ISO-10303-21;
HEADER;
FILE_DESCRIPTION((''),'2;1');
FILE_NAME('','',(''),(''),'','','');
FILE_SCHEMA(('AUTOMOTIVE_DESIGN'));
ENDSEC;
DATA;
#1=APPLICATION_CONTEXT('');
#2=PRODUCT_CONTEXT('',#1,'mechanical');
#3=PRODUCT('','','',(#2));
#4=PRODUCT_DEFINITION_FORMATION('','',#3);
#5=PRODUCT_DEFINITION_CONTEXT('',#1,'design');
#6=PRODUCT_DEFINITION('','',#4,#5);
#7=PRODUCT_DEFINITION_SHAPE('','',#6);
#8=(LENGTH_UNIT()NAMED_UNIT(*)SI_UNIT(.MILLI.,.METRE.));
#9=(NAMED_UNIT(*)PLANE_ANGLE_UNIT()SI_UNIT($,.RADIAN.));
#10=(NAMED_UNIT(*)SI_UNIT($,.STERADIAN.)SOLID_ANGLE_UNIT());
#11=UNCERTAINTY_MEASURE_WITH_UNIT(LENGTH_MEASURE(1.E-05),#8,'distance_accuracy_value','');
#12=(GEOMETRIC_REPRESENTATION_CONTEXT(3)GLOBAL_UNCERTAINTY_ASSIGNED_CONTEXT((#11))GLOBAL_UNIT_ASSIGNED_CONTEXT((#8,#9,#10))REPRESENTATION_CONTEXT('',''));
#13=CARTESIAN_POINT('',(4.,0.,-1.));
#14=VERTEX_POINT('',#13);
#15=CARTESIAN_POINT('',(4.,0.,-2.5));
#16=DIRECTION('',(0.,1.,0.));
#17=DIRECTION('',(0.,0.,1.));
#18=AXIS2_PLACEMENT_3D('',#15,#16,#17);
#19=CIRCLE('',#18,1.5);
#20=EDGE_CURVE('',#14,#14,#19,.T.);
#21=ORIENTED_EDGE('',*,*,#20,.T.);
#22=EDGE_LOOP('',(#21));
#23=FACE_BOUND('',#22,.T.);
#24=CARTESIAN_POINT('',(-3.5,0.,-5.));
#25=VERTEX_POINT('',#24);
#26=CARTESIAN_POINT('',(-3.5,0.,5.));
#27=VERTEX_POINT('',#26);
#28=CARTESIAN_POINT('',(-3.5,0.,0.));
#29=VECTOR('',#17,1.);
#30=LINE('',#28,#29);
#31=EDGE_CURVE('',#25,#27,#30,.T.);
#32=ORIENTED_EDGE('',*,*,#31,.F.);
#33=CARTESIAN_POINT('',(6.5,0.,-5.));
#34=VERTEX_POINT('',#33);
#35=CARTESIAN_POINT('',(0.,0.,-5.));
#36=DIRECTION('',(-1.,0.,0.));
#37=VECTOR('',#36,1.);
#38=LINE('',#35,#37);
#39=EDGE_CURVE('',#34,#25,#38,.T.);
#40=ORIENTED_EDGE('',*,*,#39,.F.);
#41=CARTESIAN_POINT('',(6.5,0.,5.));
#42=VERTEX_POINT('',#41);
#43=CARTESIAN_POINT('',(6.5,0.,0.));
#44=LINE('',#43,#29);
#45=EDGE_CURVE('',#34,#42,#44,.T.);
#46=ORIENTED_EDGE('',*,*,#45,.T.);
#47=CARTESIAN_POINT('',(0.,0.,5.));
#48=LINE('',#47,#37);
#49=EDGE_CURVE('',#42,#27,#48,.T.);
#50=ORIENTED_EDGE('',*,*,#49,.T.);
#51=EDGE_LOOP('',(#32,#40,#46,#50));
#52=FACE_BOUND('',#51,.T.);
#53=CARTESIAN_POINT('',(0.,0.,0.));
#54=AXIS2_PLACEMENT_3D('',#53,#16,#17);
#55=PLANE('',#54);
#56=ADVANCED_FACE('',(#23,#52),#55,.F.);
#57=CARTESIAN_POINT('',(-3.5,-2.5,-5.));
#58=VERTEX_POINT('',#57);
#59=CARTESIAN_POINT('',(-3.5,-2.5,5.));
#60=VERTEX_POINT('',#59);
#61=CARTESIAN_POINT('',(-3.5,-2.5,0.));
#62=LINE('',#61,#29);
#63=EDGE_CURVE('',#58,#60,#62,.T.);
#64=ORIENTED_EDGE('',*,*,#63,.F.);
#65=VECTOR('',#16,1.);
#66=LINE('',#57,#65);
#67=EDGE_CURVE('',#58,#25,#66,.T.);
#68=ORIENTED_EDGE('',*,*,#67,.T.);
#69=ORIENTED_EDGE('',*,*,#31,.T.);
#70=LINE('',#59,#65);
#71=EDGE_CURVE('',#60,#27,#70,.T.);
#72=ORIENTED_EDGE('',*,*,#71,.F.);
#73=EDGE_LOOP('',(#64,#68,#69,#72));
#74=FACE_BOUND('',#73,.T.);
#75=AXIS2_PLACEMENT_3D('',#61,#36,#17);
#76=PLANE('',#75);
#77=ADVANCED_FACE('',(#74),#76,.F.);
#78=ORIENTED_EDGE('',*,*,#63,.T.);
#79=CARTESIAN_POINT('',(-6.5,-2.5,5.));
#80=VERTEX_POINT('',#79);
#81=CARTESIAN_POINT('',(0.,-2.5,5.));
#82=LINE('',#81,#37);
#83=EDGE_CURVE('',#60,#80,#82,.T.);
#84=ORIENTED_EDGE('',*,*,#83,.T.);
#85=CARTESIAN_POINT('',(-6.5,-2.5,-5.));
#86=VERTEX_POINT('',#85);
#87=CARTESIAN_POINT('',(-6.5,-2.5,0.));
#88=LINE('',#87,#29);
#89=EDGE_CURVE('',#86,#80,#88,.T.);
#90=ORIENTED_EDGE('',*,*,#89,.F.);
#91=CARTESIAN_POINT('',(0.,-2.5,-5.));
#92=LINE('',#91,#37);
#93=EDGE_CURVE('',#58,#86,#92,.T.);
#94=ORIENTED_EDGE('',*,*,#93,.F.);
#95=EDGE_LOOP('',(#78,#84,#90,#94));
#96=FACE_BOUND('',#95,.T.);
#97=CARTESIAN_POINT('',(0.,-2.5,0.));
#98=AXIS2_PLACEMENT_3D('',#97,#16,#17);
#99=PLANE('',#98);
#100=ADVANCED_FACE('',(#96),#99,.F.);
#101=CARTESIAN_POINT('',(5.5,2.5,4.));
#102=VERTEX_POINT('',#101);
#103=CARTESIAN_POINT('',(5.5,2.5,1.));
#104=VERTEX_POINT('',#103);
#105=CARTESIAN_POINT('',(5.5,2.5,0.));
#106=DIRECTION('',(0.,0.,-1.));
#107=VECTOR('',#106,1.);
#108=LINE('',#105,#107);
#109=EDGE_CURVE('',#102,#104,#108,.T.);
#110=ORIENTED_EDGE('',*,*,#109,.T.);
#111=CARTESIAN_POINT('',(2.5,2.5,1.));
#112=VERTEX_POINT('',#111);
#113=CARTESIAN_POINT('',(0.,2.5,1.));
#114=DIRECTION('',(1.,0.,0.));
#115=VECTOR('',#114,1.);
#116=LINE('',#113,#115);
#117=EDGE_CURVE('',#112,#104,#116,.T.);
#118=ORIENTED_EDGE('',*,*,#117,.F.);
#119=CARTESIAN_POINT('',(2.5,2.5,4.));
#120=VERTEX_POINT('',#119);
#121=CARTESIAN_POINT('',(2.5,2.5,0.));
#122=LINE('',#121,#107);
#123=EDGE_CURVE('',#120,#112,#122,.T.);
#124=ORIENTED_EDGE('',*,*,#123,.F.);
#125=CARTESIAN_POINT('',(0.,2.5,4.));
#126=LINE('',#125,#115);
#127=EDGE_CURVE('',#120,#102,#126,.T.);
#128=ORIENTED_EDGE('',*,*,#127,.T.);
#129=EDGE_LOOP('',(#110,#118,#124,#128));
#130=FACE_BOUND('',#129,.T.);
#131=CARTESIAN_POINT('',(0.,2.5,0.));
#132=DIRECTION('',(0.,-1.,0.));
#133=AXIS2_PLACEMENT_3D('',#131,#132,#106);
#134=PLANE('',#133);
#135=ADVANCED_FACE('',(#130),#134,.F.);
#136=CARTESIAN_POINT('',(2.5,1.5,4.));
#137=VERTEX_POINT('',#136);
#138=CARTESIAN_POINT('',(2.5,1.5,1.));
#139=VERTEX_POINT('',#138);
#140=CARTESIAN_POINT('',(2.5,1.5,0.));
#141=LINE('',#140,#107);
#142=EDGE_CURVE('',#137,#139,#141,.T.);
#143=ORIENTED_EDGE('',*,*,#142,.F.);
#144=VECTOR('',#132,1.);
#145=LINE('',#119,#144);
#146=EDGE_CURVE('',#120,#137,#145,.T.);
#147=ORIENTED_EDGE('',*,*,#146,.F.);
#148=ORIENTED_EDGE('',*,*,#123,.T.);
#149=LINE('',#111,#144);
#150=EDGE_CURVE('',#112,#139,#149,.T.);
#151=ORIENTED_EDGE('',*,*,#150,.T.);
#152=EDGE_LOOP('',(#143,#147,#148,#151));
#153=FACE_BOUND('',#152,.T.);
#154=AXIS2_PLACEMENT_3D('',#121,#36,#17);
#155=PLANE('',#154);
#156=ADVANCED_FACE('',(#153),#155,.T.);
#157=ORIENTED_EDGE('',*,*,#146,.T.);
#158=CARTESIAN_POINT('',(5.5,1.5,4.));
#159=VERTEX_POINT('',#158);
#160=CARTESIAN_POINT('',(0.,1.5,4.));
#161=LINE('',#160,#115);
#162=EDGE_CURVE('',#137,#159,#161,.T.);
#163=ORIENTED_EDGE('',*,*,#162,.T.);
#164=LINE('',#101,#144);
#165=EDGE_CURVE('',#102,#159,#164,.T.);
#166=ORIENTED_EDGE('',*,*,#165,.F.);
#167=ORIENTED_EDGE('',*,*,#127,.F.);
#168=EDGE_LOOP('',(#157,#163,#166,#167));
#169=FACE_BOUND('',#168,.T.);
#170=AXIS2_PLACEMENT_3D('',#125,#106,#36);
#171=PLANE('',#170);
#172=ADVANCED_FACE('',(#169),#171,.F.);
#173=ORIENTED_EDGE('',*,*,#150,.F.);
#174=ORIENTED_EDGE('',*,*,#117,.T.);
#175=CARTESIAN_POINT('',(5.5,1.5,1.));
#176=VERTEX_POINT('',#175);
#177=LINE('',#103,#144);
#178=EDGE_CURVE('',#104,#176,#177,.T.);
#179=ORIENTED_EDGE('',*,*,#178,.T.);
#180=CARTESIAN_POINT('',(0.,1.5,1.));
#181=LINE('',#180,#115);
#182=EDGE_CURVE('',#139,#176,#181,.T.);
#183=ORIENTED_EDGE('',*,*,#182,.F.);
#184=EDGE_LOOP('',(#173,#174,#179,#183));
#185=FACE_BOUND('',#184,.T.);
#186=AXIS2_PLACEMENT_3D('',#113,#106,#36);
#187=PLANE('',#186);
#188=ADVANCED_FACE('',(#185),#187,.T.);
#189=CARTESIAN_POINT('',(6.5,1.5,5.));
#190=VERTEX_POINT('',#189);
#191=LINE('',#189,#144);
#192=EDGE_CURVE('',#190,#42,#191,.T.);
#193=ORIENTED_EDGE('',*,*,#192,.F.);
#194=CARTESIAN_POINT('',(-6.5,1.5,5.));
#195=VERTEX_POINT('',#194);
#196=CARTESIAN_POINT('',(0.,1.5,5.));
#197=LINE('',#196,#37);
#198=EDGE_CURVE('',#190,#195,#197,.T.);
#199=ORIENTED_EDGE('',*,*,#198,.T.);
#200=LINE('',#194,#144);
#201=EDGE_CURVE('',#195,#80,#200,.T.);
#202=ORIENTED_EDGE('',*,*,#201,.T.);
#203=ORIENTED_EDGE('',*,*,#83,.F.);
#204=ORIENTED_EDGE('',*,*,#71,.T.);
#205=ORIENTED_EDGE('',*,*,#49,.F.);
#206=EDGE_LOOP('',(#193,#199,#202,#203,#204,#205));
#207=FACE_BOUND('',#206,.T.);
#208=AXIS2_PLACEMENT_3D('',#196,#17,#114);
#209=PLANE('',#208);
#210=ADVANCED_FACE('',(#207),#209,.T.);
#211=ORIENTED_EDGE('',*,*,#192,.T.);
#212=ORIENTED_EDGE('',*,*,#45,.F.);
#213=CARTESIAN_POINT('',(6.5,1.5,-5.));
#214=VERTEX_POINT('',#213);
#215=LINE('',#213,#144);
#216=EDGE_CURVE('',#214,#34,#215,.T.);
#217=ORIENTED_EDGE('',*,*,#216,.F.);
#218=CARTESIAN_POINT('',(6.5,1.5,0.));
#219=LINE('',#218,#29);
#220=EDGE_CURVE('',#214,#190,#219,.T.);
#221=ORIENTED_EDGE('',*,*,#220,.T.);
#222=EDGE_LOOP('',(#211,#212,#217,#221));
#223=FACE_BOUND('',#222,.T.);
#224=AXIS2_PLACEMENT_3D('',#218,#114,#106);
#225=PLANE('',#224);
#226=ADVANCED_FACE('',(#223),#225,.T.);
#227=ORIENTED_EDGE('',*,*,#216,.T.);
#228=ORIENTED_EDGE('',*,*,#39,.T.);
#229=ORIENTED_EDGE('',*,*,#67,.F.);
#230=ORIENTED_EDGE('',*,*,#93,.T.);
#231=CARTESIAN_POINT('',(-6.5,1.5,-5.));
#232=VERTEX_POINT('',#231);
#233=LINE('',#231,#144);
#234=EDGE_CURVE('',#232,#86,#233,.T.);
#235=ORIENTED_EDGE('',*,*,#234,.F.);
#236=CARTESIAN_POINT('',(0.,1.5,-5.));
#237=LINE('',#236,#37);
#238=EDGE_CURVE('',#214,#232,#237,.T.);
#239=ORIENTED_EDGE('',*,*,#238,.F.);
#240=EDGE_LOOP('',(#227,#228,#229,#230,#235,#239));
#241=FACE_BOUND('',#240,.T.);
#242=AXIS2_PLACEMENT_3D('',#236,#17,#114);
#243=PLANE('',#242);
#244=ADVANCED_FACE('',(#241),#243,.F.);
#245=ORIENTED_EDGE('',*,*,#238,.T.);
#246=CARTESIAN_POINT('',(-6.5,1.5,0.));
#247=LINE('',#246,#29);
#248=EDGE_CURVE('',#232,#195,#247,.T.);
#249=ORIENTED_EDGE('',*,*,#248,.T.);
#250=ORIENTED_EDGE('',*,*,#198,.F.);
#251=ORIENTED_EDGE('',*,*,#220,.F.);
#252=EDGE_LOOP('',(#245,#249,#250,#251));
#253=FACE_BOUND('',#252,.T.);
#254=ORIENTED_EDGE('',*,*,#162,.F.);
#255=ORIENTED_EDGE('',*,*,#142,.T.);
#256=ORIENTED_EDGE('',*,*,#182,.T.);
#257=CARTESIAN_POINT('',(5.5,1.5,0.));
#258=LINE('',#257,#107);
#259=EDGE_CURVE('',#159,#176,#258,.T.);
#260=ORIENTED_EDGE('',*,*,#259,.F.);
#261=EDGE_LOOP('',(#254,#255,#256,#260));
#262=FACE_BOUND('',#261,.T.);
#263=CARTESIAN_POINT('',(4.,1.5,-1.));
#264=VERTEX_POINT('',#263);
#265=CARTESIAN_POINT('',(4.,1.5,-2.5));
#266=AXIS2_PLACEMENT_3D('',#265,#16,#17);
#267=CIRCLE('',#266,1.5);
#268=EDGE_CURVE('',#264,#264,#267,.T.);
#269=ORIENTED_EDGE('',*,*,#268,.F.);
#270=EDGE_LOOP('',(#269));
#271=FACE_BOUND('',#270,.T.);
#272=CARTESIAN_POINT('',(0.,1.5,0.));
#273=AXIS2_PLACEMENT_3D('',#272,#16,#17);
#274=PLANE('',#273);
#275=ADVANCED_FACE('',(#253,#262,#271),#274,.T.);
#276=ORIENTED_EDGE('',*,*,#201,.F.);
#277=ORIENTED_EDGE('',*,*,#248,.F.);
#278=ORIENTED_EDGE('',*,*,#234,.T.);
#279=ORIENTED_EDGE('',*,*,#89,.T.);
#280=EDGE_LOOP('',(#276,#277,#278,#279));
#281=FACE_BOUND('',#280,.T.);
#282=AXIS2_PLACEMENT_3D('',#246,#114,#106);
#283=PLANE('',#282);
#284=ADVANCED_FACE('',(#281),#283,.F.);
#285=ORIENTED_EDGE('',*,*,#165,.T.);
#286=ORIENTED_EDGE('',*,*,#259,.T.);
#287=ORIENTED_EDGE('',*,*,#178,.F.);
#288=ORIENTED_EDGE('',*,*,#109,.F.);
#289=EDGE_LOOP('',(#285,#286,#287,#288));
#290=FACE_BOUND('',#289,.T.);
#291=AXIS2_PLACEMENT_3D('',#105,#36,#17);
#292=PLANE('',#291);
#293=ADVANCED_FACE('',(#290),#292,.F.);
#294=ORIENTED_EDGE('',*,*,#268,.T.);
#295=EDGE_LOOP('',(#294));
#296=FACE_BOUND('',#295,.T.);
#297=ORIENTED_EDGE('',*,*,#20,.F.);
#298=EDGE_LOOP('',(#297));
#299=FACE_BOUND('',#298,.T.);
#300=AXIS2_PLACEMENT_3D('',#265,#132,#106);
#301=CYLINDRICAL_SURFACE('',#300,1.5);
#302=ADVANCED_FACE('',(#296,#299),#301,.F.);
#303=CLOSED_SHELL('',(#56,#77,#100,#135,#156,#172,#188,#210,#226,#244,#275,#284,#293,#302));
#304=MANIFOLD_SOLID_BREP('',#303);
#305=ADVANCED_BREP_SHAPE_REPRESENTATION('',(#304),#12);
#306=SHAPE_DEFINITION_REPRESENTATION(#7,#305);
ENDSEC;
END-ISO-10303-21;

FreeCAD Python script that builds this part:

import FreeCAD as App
import Part
import Sketcher
from FreeCAD import Vector
Q = App.Units.Quantity


def add_polygon(sketch, points):
    """Adds a closed chain of lines whose ends are joined by coincident constraints."""
    first, n = sketch.GeometryCount, len(points)
    for a, b in zip(points, points[1:] + points[:1]):
        sketch.addGeometry(Part.LineSegment(App.Vector(*a, 0), App.Vector(*b, 0)), False)
    for i in range(n):
        sketch.addConstraint(Sketcher.Constraint("Coincident", first + i, 2, first + (i + 1) % n, 1))

doc = App.newDocument("Part")
body = doc.addObject("PartDesign::Body", "Body")

sketch1 = doc.addObject("Sketcher::SketchObject", "Sketch")
body.addObject(sketch1)
sketch1.AttachmentSupport = (doc.XZ_Plane, [""])
sketch1.MapMode = "FlatFace"
add_polygon(sketch1, [(-6.5, -5), (-6.5, 5), (6.5, 5), (6.5, -5)])
sketch1.addGeometry(Part.Circle(Vector(4, -2.5, 0), Vector(0, 0, 1), 1.5), False)
sketch1.addConstraint([
    Sketcher.Constraint("Vertical", 0),
    Sketcher.Constraint("Horizontal", 1),
    Sketcher.Constraint("Vertical", 2),
    Sketcher.Constraint("Horizontal", 3),
    Sketcher.Constraint("Symmetric", 0, 2, 2, 2, -1, 1),
    Sketcher.Constraint("Diameter", 4, Q("3 mm")),
    Sketcher.Constraint("DistanceX", 1, 1, 1, 2, Q("13 mm")),
    Sketcher.Constraint("DistanceY", 0, 1, 0, 2, Q("10 mm")),
    Sketcher.Constraint("DistanceX", -1, 1, 4, 3, Q("4 mm")),
    Sketcher.Constraint("DistanceY", 4, 3, -1, 1, Q("2.5 mm")),
])
pad1 = doc.addObject("PartDesign::Pad", "Pad")
body.addObject(pad1)
pad1.Profile = sketch1
pad1.Length = 1.5
pad1.Reversed = True

sketch2 = doc.addObject("Sketcher::SketchObject", "Sketch001")
body.addObject(sketch2)
sketch2.AttachmentSupport = (doc.XZ_Plane, [""])
sketch2.MapMode = "FlatFace"
add_polygon(sketch2, [(-6.5, -5), (-6.5, 5), (-3.5, 5), (-3.5, -5)])
sketch2.addConstraint([
    Sketcher.Constraint("Vertical", 0),
    Sketcher.Constraint("Horizontal", 1),
    Sketcher.Constraint("Vertical", 2),
    Sketcher.Constraint("Horizontal", 3),
    Sketcher.Constraint("DistanceX", 1, 1, 1, 2, Q("3 mm")),
    Sketcher.Constraint("DistanceY", 0, 1, 0, 2, Q("10 mm")),
    Sketcher.Constraint("DistanceY", -1, 1, 0, 2, Q("5 mm")),
    Sketcher.Constraint("DistanceX", 0, 2, -1, 1, Q("6.5 mm")),
])
pad2 = doc.addObject("PartDesign::Pad", "Pad001")
body.addObject(pad2)
pad2.Profile = sketch2
pad2.Length = 2.5

sketch3 = doc.addObject("Sketcher::SketchObject", "Sketch002")
body.addObject(sketch3)
sketch3.AttachmentSupport = (doc.XZ_Plane, [""])
sketch3.MapMode = "FlatFace"
sketch3.AttachmentOffset = App.Placement(Vector(0, 0, -1.5), App.Rotation())
add_polygon(sketch3, [(2.5, 1), (2.5, 4), (5.5, 4), (5.5, 1)])
sketch3.addConstraint([
    Sketcher.Constraint("Vertical", 0),
    Sketcher.Constraint("Horizontal", 1),
    Sketcher.Constraint("Vertical", 2),
    Sketcher.Constraint("Horizontal", 3),
    Sketcher.Constraint("Equal", 3, 0),
    Sketcher.Constraint("DistanceX", 1, 1, 1, 2, Q("3 mm")),
    Sketcher.Constraint("DistanceY", -1, 1, 0, 2, Q("4 mm")),
    Sketcher.Constraint("DistanceX", -1, 1, 0, 2, Q("2.5 mm")),
])
pad3 = doc.addObject("PartDesign::Pad", "Pad002")
body.addObject(pad3)
pad3.Profile = sketch3
pad3.Length = 1
pad3.Reversed = True

doc.recompute()
